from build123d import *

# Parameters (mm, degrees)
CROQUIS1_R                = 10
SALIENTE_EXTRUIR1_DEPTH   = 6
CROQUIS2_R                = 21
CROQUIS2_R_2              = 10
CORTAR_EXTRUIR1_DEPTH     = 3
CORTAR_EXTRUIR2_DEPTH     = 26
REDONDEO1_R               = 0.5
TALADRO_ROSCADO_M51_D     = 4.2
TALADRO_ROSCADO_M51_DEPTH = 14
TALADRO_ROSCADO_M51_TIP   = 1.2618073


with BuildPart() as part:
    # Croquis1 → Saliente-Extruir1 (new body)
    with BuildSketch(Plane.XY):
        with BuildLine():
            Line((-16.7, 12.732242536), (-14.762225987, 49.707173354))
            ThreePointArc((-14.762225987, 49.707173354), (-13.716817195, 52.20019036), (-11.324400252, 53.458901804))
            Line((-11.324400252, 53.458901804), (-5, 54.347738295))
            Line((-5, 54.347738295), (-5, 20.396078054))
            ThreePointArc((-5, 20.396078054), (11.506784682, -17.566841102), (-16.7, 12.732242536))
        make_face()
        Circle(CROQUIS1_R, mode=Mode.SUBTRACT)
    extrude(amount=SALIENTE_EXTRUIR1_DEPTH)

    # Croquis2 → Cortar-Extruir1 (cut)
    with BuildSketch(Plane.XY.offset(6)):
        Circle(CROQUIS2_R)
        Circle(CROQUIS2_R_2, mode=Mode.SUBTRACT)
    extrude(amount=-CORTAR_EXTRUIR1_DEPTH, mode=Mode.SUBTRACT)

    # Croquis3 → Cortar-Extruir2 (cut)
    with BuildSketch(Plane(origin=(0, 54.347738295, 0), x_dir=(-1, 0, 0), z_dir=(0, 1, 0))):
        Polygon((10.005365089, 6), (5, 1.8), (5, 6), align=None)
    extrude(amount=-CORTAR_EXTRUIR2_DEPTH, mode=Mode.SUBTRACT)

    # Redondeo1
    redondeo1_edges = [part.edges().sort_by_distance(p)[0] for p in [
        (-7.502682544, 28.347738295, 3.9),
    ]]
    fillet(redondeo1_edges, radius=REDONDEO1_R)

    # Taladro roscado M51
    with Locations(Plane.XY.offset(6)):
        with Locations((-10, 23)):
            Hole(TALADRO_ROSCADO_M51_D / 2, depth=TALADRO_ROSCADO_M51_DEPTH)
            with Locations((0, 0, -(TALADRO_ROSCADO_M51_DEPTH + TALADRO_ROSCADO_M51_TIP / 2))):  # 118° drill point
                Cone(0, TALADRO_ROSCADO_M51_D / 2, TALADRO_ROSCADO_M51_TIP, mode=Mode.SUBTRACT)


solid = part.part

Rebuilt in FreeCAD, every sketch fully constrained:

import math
import FreeCAD as App
import Part
import Sketcher
from FreeCAD import Vector
Q = App.Units.Quantity


def edges_at(feature, points):
    """Names of the edges that pass closest to the given points."""
    edges = feature.Shape.Edges
    near = lambda p: min(range(len(edges)), key=lambda i: edges[i].distToShape(Part.Vertex(*p))[0])
    return sorted({f"Edge{near(p) + 1}" for p in points})


def add_polygon(sketch, points):
    """Adds a closed chain of lines whose ends are joined by coincident constraints."""
    first, n = sketch.GeometryCount, len(points)
    for a, b in zip(points, points[1:] + points[:1]):
        sketch.addGeometry(Part.LineSegment(App.Vector(*a, 0), App.Vector(*b, 0)), False)
    for i in range(n):
        sketch.addConstraint(Sketcher.Constraint("Coincident", first + i, 2, first + (i + 1) % n, 1))

doc = App.newDocument("Part")
params = doc.addObject("Spreadsheet::Sheet", "Params")
for row, (alias, value) in enumerate([
    ("sketch1_diameter", "20 mm"),
    ("sketch1_radius", "21 mm"),
    ("sketch1_radius2", "4 mm"),
    ("pad1_length", "6 mm"),
    ("sketch2_diameter", "42 mm"),
    ("sketch2_diameter2", "20 mm"),
    ("pocket1_length", "3 mm"),
    ("sketch3_height", "4.2 mm"),
    ("pocket2_length", "26 mm"),
    ("fillet_radius", "0.5 mm"),
    ("sketch4_diameter", "4.2 mm"),
    ("hole_diameter", "4.2 mm"),
    ("hole_depth", "14 mm"),
], start=1):
    params.set(f"A{row}", alias)
    params.set(f"B{row}", "=" + value)
    params.setAlias(f"B{row}", alias)

body = doc.addObject("PartDesign::Body", "Body")

sketch1 = body.newObject("Sketcher::SketchObject", "Sketch")
sketch1.AttachmentSupport = (doc.getObject("XY_Plane"), [""])
sketch1.MapMode = "FlatFace"
sketch1.addGeometry(Part.LineSegment(Vector(-14.8, 49.7, 0), Vector(-16.7, 12.7, 0)), False)
sketch1.addGeometry(Part.ArcOfCircle(Part.Circle(Vector(0, 0, 0), Vector(0, 0, 1), 21), math.radians(143), math.radians(464)), False)
sketch1.addGeometry(Part.LineSegment(Vector(-5, 20.4, 0), Vector(-5, 54.3, 0)), False)
sketch1.addGeometry(Part.LineSegment(Vector(-5, 54.3, 0), Vector(-11.3, 53.5, 0)), False)
sketch1.addGeometry(Part.ArcOfCircle(Part.Circle(Vector(-10.8, 49.5, 0), Vector(0, 0, 1), 4), math.radians(98), math.radians(177)), False)
sketch1.addGeometry(Part.Circle(Vector(0, 0, 0), Vector(0, 0, 1), 10), False)
sketch1.addConstraint(Sketcher.Constraint("Coincident", 0, 2, 1, 1))
sketch1.addConstraint(Sketcher.Constraint("Coincident", 1, 2, 2, 1))
sketch1.addConstraint(Sketcher.Constraint("Coincident", 2, 2, 3, 1))
sketch1.addConstraint(Sketcher.Constraint("Tangent", 3, 2, 4, 1))
sketch1.addConstraint(Sketcher.Constraint("Tangent", 4, 2, 0, 1))
sketch1.addConstraint(Sketcher.Constraint("Vertical", 2))
sketch1.addConstraint(Sketcher.Constraint("Coincident", 1, 3, -1, 1))
sketch1.addConstraint(Sketcher.Constraint("Coincident", 5, 3, -1, 1))
sketch1.addConstraint(Sketcher.Constraint("Diameter", 5, Q("20 mm")))
sketch1.addConstraint(Sketcher.Constraint("Radius", 1, Q("21 mm")))
sketch1.addConstraint(Sketcher.Constraint("Radius", 4, Q("4 mm")))
sketch1.addConstraint(Sketcher.Constraint("Angle", 0, Q("-93 deg")))
sketch1.addConstraint(Sketcher.Constraint("Angle", 3, Q("-172 deg")))
sketch1.addConstraint(Sketcher.Constraint("DistanceX", 1, 2, -1, 1, Q("5 mm")))
sketch1.addConstraint(Sketcher.Constraint("DistanceX", 0, 2, -1, 1, Q("16.7 mm")))
sketch1.addConstraint(Sketcher.Constraint("DistanceY", 2, 1, 2, 2, Q("33.95166 mm")))
sketch1.setExpression("Constraints[8]", "Params.sketch1_diameter")
sketch1.setExpression("Constraints[9]", "Params.sketch1_radius")
sketch1.setExpression("Constraints[10]", "Params.sketch1_radius2")
pad1 = body.newObject("PartDesign::Pad", "Pad")
pad1.Profile = sketch1
pad1.setExpression("Length", "Params.pad1_length")

sketch2 = body.newObject("Sketcher::SketchObject", "Sketch001")
sketch2.AttachmentSupport = (doc.getObject("XY_Plane"), [""])
sketch2.MapMode = "FlatFace"
sketch2.AttachmentOffset = App.Placement(Vector(0, 0, 6), App.Rotation())
sketch2.addGeometry(Part.Circle(Vector(0, 0, 0), Vector(0, 0, 1), 21), False)
sketch2.addGeometry(Part.Circle(Vector(0, 0, 0), Vector(0, 0, 1), 10), False)
sketch2.addConstraint(Sketcher.Constraint("Coincident", 0, 3, -1, 1))
sketch2.addConstraint(Sketcher.Constraint("Coincident", 1, 3, -1, 1))
sketch2.addConstraint(Sketcher.Constraint("Diameter", 0, Q("42 mm")))
sketch2.addConstraint(Sketcher.Constraint("Diameter", 1, Q("20 mm")))
sketch2.setExpression("Constraints[2]", "Params.sketch2_diameter")
sketch2.setExpression("Constraints[3]", "Params.sketch2_diameter2")
pocket1 = body.newObject("PartDesign::Pocket", "Pocket")
pocket1.Profile = sketch2
pocket1.setExpression("Length", "Params.pocket1_length")

sketch3 = body.newObject("Sketcher::SketchObject", "Sketch002")
sketch3.AttachmentSupport = (doc.getObject("XZ_Plane"), [""])
sketch3.MapMode = "FlatFace"
sketch3.AttachmentOffset = App.Placement(Vector(0, 0, -54.347738), App.Rotation())
add_polygon(sketch3, [(-5, 1.8), (-10, 6), (-5, 6)])
sketch3.addConstraint(Sketcher.Constraint("Horizontal", 1))
sketch3.addConstraint(Sketcher.Constraint("Vertical", 2))
sketch3.addConstraint(Sketcher.Constraint("Angle", 0, Q("140 deg")))
sketch3.addConstraint(Sketcher.Constraint("DistanceY", 2, 2, 2, 1, Q("4.2 mm")))
sketch3.addConstraint(Sketcher.Constraint("DistanceY", -1, 1, 0, 2, Q("6 mm")))
sketch3.addConstraint(Sketcher.Constraint("DistanceX", 1, 2, -1, 1, Q("5 mm")))
sketch3.setExpression("Constraints[6]", "Params.sketch3_height")
pocket2 = body.newObject("PartDesign::Pocket", "Pocket001")
pocket2.Profile = sketch3
pocket2.setExpression("Length", "Params.pocket2_length")
pocket2.Reversed = True
doc.recompute()

fillet = body.newObject("PartDesign::Fillet", "Fillet")
fillet.Base = (pocket2, edges_at(pocket2, [(-7.503, 28.348, 3.9)]))
fillet.setExpression("Radius", "Params.fillet_radius")

sketch4 = body.newObject("Sketcher::SketchObject", "Sketch003")
sketch4.AttachmentSupport = (doc.getObject("XY_Plane"), [""])
sketch4.MapMode = "FlatFace"
sketch4.AttachmentOffset = App.Placement(Vector(0, 0, 6), App.Rotation())
sketch4.addGeometry(Part.Circle(Vector(-10, 23, 0), Vector(0, 0, 1), 2.1), False)
sketch4.addConstraint(Sketcher.Constraint("Diameter", 0, Q("4.2 mm")))
sketch4.addConstraint(Sketcher.Constraint("DistanceX", 0, 3, -1, 1, Q("10 mm")))
sketch4.addConstraint(Sketcher.Constraint("DistanceY", -1, 1, 0, 3, Q("23 mm")))
sketch4.setExpression("Constraints[0]", "Params.sketch4_diameter")
doc.recompute()
hole = body.newObject("PartDesign::Hole", "Hole")
hole.Profile = sketch4
hole.ThreadType = "None"
hole.setExpression("Diameter", "Params.hole_diameter")
hole.DepthType = "Dimension"
hole.setExpression("Depth", "Params.hole_depth")
hole.DrillPoint = "Angled"
hole.DrillPointAngle = 118

doc.recompute()
